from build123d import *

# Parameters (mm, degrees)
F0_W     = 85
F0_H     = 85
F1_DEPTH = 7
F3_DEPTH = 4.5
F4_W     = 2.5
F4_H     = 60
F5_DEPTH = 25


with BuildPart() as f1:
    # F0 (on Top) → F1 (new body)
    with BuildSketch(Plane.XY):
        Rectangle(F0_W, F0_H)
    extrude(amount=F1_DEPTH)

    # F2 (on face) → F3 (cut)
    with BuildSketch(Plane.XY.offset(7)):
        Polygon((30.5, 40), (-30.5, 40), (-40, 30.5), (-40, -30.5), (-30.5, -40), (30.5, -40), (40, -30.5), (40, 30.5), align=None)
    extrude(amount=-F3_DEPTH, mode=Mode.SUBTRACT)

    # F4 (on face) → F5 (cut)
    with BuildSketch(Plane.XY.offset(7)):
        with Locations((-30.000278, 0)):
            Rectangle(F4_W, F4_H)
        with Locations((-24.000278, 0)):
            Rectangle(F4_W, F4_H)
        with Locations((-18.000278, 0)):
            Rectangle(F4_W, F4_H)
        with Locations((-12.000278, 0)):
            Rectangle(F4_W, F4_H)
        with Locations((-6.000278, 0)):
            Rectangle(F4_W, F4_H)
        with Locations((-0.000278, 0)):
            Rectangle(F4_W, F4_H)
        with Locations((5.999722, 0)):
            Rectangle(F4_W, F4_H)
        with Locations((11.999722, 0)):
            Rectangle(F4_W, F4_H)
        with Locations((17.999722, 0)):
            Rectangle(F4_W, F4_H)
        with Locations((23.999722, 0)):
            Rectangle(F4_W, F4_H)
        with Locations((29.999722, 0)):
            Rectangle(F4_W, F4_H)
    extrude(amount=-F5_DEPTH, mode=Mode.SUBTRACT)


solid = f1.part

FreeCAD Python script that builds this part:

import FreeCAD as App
import Part
import Sketcher
from FreeCAD import Vector
Q = App.Units.Quantity

doc = App.newDocument("Part")
body = doc.addObject("PartDesign::Body", "Body")

# Sketch on XY plane
sketch1 = doc.addObject("Sketcher::SketchObject", "Sketch")
body.addObject(sketch1)
sketch1.AttachmentSupport = (doc.XY_Plane, [""])
sketch1.MapMode = "FlatFace"
sketch1.addGeometry(Part.LineSegment(Vector(-42.5, 42.5, 0), Vector(-42.5, -42.5, 0)), False)
sketch1.addGeometry(Part.LineSegment(Vector(-42.5, -42.5, 0), Vector(42.5, -42.5, 0)), False)
sketch1.addGeometry(Part.LineSegment(Vector(42.5, -42.5, 0), Vector(42.5, 42.5, 0)), False)
sketch1.addGeometry(Part.LineSegment(Vector(42.5, 42.5, 0), Vector(-42.5, 42.5, 0)), False)
sketch1.addConstraint(Sketcher.Constraint("Coincident", 0, 2, 1, 1))
sketch1.addConstraint(Sketcher.Constraint("Coincident", 1, 2, 2, 1))
sketch1.addConstraint(Sketcher.Constraint("Coincident", 2, 2, 3, 1))
sketch1.addConstraint(Sketcher.Constraint("Coincident", 3, 2, 0, 1))
sketch1.addConstraint(Sketcher.Constraint("Vertical", 0))
sketch1.addConstraint(Sketcher.Constraint("Horizontal", 1))
sketch1.addConstraint(Sketcher.Constraint("Vertical", 2))
sketch1.addConstraint(Sketcher.Constraint("Horizontal", 3))
sketch1.addConstraint(Sketcher.Constraint("Symmetric", 0, 2, 2, 2, -1, 1))
sketch1.addConstraint(Sketcher.Constraint("Equal", 3, 0))
sketch1.addConstraint(Sketcher.Constraint("DistanceX", 1, 1, 1, 2, Q("85 mm")))
pad1 = doc.addObject("PartDesign::Pad", "Pad")
body.addObject(pad1)
pad1.Profile = sketch1
pad1.Length = 7

# Sketch on XY plane
sketch2 = doc.addObject("Sketcher::SketchObject", "Sketch001")
body.addObject(sketch2)
sketch2.AttachmentSupport = (doc.XY_Plane, [""])
sketch2.MapMode = "FlatFace"
sketch2.AttachmentOffset = App.Placement(Vector(0, 0, 7), App.Rotation())
sketch2.addGeometry(Part.LineSegment(Vector(30.5, 40, 0), Vector(-30.5, 40, 0)), False)
sketch2.addGeometry(Part.LineSegment(Vector(-30.5, 40, 0), Vector(-40, 30.5, 0)), False)
sketch2.addGeometry(Part.LineSegment(Vector(-40, 30.5, 0), Vector(-40, -30.5, 0)), False)
sketch2.addGeometry(Part.LineSegment(Vector(-40, -30.5, 0), Vector(-30.5, -40, 0)), False)
sketch2.addGeometry(Part.LineSegment(Vector(-30.5, -40, 0), Vector(30.5, -40, 0)), False)
sketch2.addGeometry(Part.LineSegment(Vector(30.5, -40, 0), Vector(40, -30.5, 0)), False)
sketch2.addGeometry(Part.LineSegment(Vector(40, -30.5, 0), Vector(40, 30.5, 0)), False)
sketch2.addGeometry(Part.LineSegment(Vector(40, 30.5, 0), Vector(30.5, 40, 0)), False)
sketch2.addConstraint(Sketcher.Constraint("Coincident", 0, 2, 1, 1))
sketch2.addConstraint(Sketcher.Constraint("Coincident", 1, 2, 2, 1))
sketch2.addConstraint(Sketcher.Constraint("Coincident", 2, 2, 3, 1))
sketch2.addConstraint(Sketcher.Constraint("Coincident", 3, 2, 4, 1))
sketch2.addConstraint(Sketcher.Constraint("Coincident", 4, 2, 5, 1))
sketch2.addConstraint(Sketcher.Constraint("Coincident", 5, 2, 6, 1))
sketch2.addConstraint(Sketcher.Constraint("Coincident", 6, 2, 7, 1))
sketch2.addConstraint(Sketcher.Constraint("Coincident", 7, 2, 0, 1))
sketch2.addConstraint(Sketcher.Constraint("Horizontal", 0))
sketch2.addConstraint(Sketcher.Constraint("Vertical", 2))
sketch2.addConstraint(Sketcher.Constraint("Horizontal", 4))
sketch2.addConstraint(Sketcher.Constraint("Vertical", 6))
sketch2.addConstraint(Sketcher.Constraint("Symmetric", 0, 2, 4, 2, -1, 1))
sketch2.addConstraint(Sketcher.Constraint("Symmetric", 1, 2, 5, 2, -1, 1))
sketch2.addConstraint(Sketcher.Constraint("Perpendicular", 1, 3))
sketch2.addConstraint(Sketcher.Constraint("Perpendicular", 5, 7))
sketch2.addConstraint(Sketcher.Constraint("Horizontal", 2, 2, 5, 2))
sketch2.addConstraint(Sketcher.Constraint("Horizontal", 1, 2, 6, 2))
sketch2.addConstraint(Sketcher.Constraint("Vertical", 0, 2, 3, 2))
sketch2.addConstraint(Sketcher.Constraint("Equal", 4, 2))
sketch2.addConstraint(Sketcher.Constraint("DistanceX", 0, 2, 0, 1, Q("61 mm")))
sketch2.addConstraint(Sketcher.Constraint("DistanceY", -1, 1, 0, 2, Q("40 mm")))
pocket1 = doc.addObject("PartDesign::Pocket", "Pocket")
body.addObject(pocket1)
pocket1.Profile = sketch2
pocket1.Length = 4.5

# Sketch on XY plane
sketch3 = doc.addObject("Sketcher::SketchObject", "Sketch002")
body.addObject(sketch3)
sketch3.AttachmentSupport = (doc.XY_Plane, [""])
sketch3.MapMode = "FlatFace"
sketch3.AttachmentOffset = App.Placement(Vector(0, 0, 7), App.Rotation())
sketch3.addGeometry(Part.LineSegment(Vector(-31.250278, 30, 0), Vector(-31.250278, -30, 0)), False)
sketch3.addGeometry(Part.LineSegment(Vector(-31.250278, -30, 0), Vector(-28.750278, -30, 0)), False)
sketch3.addGeometry(Part.LineSegment(Vector(-28.750278, -30, 0), Vector(-28.750278, 30, 0)), False)
sketch3.addGeometry(Part.LineSegment(Vector(-28.750278, 30, 0), Vector(-31.250278, 30, 0)), False)
sketch3.addGeometry(Part.LineSegment(Vector(-25.250278, 30, 0), Vector(-25.250278, -30, 0)), False)
sketch3.addGeometry(Part.LineSegment(Vector(-25.250278, -30, 0), Vector(-22.750278, -30, 0)), False)
sketch3.addGeometry(Part.LineSegment(Vector(-22.750278, -30, 0), Vector(-22.750278, 30, 0)), False)
sketch3.addGeometry(Part.LineSegment(Vector(-22.750278, 30, 0), Vector(-25.250278, 30, 0)), False)
sketch3.addGeometry(Part.LineSegment(Vector(-19.250278, 30, 0), Vector(-19.250278, -30, 0)), False)
sketch3.addGeometry(Part.LineSegment(Vector(-19.250278, -30, 0), Vector(-16.750278, -30, 0)), False)
sketch3.addGeometry(Part.LineSegment(Vector(-16.750278, -30, 0), Vector(-16.750278, 30, 0)), False)
sketch3.addGeometry(Part.LineSegment(Vector(-16.750278, 30, 0), Vector(-19.250278, 30, 0)), False)
sketch3.addGeometry(Part.LineSegment(Vector(-13.250278, 30, 0), Vector(-13.250278, -30, 0)), False)
sketch3.addGeometry(Part.LineSegment(Vector(-13.250278, -30, 0), Vector(-10.750278, -30, 0)), False)
sketch3.addGeometry(Part.LineSegment(Vector(-10.750278, -30, 0), Vector(-10.750278, 30, 0)), False)
sketch3.addGeometry(Part.LineSegment(Vector(-10.750278, 30, 0), Vector(-13.250278, 30, 0)), False)
sketch3.addGeometry(Part.LineSegment(Vector(-7.250278, 30, 0), Vector(-7.250278, -30, 0)), False)
sketch3.addGeometry(Part.LineSegment(Vector(-7.250278, -30, 0), Vector(-4.750278, -30, 0)), False)
sketch3.addGeometry(Part.LineSegment(Vector(-4.750278, -30, 0), Vector(-4.750278, 30, 0)), False)
sketch3.addGeometry(Part.LineSegment(Vector(-4.750278, 30, 0), Vector(-7.250278, 30, 0)), False)
sketch3.addGeometry(Part.LineSegment(Vector(-1.250278, 30, 0), Vector(-1.250278, -30, 0)), False)
sketch3.addGeometry(Part.LineSegment(Vector(-1.250278, -30, 0), Vector(1.249722, -30, 0)), False)
sketch3.addGeometry(Part.LineSegment(Vector(1.249722, -30, 0), Vector(1.249722, 30, 0)), False)
sketch3.addGeometry(Part.LineSegment(Vector(1.249722, 30, 0), Vector(-1.250278, 30, 0)), False)
sketch3.addGeometry(Part.LineSegment(Vector(4.749722, 30, 0), Vector(4.749722, -30, 0)), False)
sketch3.addGeometry(Part.LineSegment(Vector(4.749722, -30, 0), Vector(7.249722, -30, 0)), False)
sketch3.addGeometry(Part.LineSegment(Vector(7.249722, -30, 0), Vector(7.249722, 30, 0)), False)
sketch3.addGeometry(Part.LineSegment(Vector(7.249722, 30, 0), Vector(4.749722, 30, 0)), False)
sketch3.addGeometry(Part.LineSegment(Vector(10.749722, 30, 0), Vector(10.749722, -30, 0)), False)
sketch3.addGeometry(Part.LineSegment(Vector(10.749722, -30, 0), Vector(13.249722, -30, 0)), False)
sketch3.addGeometry(Part.LineSegment(Vector(13.249722, -30, 0), Vector(13.249722, 30, 0)), False)
sketch3.addGeometry(Part.LineSegment(Vector(13.249722, 30, 0), Vector(10.749722, 30, 0)), False)
sketch3.addGeometry(Part.LineSegment(Vector(16.749722, 30, 0), Vector(16.749722, -30, 0)), False)
sketch3.addGeometry(Part.LineSegment(Vector(16.749722, -30, 0), Vector(19.249722, -30, 0)), False)
sketch3.addGeometry(Part.LineSegment(Vector(19.249722, -30, 0), Vector(19.249722, 30, 0)), False)
sketch3.addGeometry(Part.LineSegment(Vector(19.249722, 30, 0), Vector(16.749722, 30, 0)), False)
sketch3.addGeometry(Part.LineSegment(Vector(22.749722, 30, 0), Vector(22.749722, -30, 0)), False)
sketch3.addGeometry(Part.LineSegment(Vector(22.749722, -30, 0), Vector(25.249722, -30, 0)), False)
sketch3.addGeometry(Part.LineSegment(Vector(25.249722, -30, 0), Vector(25.249722, 30, 0)), False)
sketch3.addGeometry(Part.LineSegment(Vector(25.249722, 30, 0), Vector(22.749722, 30, 0)), False)
sketch3.addGeometry(Part.LineSegment(Vector(28.749722, 30, 0), Vector(28.749722, -30, 0)), False)
sketch3.addGeometry(Part.LineSegment(Vector(28.749722, -30, 0), Vector(31.249722, -30, 0)), False)
sketch3.addGeometry(Part.LineSegment(Vector(31.249722, -30, 0), Vector(31.249722, 30, 0)), False)
sketch3.addGeometry(Part.LineSegment(Vector(31.249722, 30, 0), Vector(28.749722, 30, 0)), False)
sketch3.addConstraint(Sketcher.Constraint("Coincident", 0, 2, 1, 1))
sketch3.addConstraint(Sketcher.Constraint("Coincident", 1, 2, 2, 1))
sketch3.addConstraint(Sketcher.Constraint("Coincident", 2, 2, 3, 1))
sketch3.addConstraint(Sketcher.Constraint("Coincident", 3, 2, 0, 1))
sketch3.addConstraint(Sketcher.Constraint("Coincident", 4, 2, 5, 1))
sketch3.addConstraint(Sketcher.Constraint("Coincident", 5, 2, 6, 1))
sketch3.addConstraint(Sketcher.Constraint("Coincident", 6, 2, 7, 1))
sketch3.addConstraint(Sketcher.Constraint("Coincident", 7, 2, 4, 1))
sketch3.addConstraint(Sketcher.Constraint("Coincident", 8, 2, 9, 1))
sketch3.addConstraint(Sketcher.Constraint("Coincident", 9, 2, 10, 1))
sketch3.addConstraint(Sketcher.Constraint("Coincident", 10, 2, 11, 1))
sketch3.addConstraint(Sketcher.Constraint("Coincident", 11, 2, 8, 1))
sketch3.addConstraint(Sketcher.Constraint("Coincident", 12, 2, 13, 1))
sketch3.addConstraint(Sketcher.Constraint("Coincident", 13, 2, 14, 1))
sketch3.addConstraint(Sketcher.Constraint("Coincident", 14, 2, 15, 1))
sketch3.addConstraint(Sketcher.Constraint("Coincident", 15, 2, 12, 1))
sketch3.addConstraint(Sketcher.Constraint("Coincident", 16, 2, 17, 1))
sketch3.addConstraint(Sketcher.Constraint("Coincident", 17, 2, 18, 1))
sketch3.addConstraint(Sketcher.Constraint("Coincident", 18, 2, 19, 1))
sketch3.addConstraint(Sketcher.Constraint("Coincident", 19, 2, 16, 1))
sketch3.addConstraint(Sketcher.Constraint("Coincident", 20, 2, 21, 1))
sketch3.addConstraint(Sketcher.Constraint("Coincident", 21, 2, 22, 1))
sketch3.addConstraint(Sketcher.Constraint("Coincident", 22, 2, 23, 1))
sketch3.addConstraint(Sketcher.Constraint("Coincident", 23, 2, 20, 1))
sketch3.addConstraint(Sketcher.Constraint("Coincident", 24, 2, 25, 1))
sketch3.addConstraint(Sketcher.Constraint("Coincident", 25, 2, 26, 1))
sketch3.addConstraint(Sketcher.Constraint("Coincident", 26, 2, 27, 1))
sketch3.addConstraint(Sketcher.Constraint("Coincident", 27, 2, 24, 1))
sketch3.addConstraint(Sketcher.Constraint("Coincident", 28, 2, 29, 1))
sketch3.addConstraint(Sketcher.Constraint("Coincident", 29, 2, 30, 1))
sketch3.addConstraint(Sketcher.Constraint("Coincident", 30, 2, 31, 1))
sketch3.addConstraint(Sketcher.Constraint("Coincident", 31, 2, 28, 1))
sketch3.addConstraint(Sketcher.Constraint("Coincident", 32, 2, 33, 1))
sketch3.addConstraint(Sketcher.Constraint("Coincident", 33, 2, 34, 1))
sketch3.addConstraint(Sketcher.Constraint("Coincident", 34, 2, 35, 1))
sketch3.addConstraint(Sketcher.Constraint("Coincident", 35, 2, 32, 1))
sketch3.addConstraint(Sketcher.Constraint("Coincident", 36, 2, 37, 1))
sketch3.addConstraint(Sketcher.Constraint("Coincident", 37, 2, 38, 1))
sketch3.addConstraint(Sketcher.Constraint("Coincident", 38, 2, 39, 1))
sketch3.addConstraint(Sketcher.Constraint("Coincident", 39, 2, 36, 1))
sketch3.addConstraint(Sketcher.Constraint("Coincident", 40, 2, 41, 1))
sketch3.addConstraint(Sketcher.Constraint("Coincident", 41, 2, 42, 1))
sketch3.addConstraint(Sketcher.Constraint("Coincident", 42, 2, 43, 1))
sketch3.addConstraint(Sketcher.Constraint("Coincident", 43, 2, 40, 1))
sketch3.addConstraint(Sketcher.Constraint("Vertical", 0))
sketch3.addConstraint(Sketcher.Constraint("Horizontal", 1))
sketch3.addConstraint(Sketcher.Constraint("Vertical", 2))
sketch3.addConstraint(Sketcher.Constraint("Horizontal", 3))
sketch3.addConstraint(Sketcher.Constraint("Vertical", 4))
sketch3.addConstraint(Sketcher.Constraint("Horizontal", 5))
sketch3.addConstraint(Sketcher.Constraint("Vertical", 6))
sketch3.addConstraint(Sketcher.Constraint("Horizontal", 7))
sketch3.addConstraint(Sketcher.Constraint("Vertical", 8))
sketch3.addConstraint(Sketcher.Constraint("Horizontal", 9))
sketch3.addConstraint(Sketcher.Constraint("Vertical", 10))
sketch3.addConstraint(Sketcher.Constraint("Horizontal", 11))
sketch3.addConstraint(Sketcher.Constraint("Vertical", 12))
sketch3.addConstraint(Sketcher.Constraint("Horizontal", 13))
sketch3.addConstraint(Sketcher.Constraint("Vertical", 14))
sketch3.addConstraint(Sketcher.Constraint("Horizontal", 15))
sketch3.addConstraint(Sketcher.Constraint("Vertical", 16))
sketch3.addConstraint(Sketcher.Constraint("Horizontal", 17))
sketch3.addConstraint(Sketcher.Constraint("Vertical", 18))
sketch3.addConstraint(Sketcher.Constraint("Horizontal", 19))
sketch3.addConstraint(Sketcher.Constraint("Vertical", 20))
sketch3.addConstraint(Sketcher.Constraint("Horizontal", 21))
sketch3.addConstraint(Sketcher.Constraint("Vertical", 22))
sketch3.addConstraint(Sketcher.Constraint("Horizontal", 23))
sketch3.addConstraint(Sketcher.Constraint("Vertical", 24))
sketch3.addConstraint(Sketcher.Constraint("Horizontal", 25))
sketch3.addConstraint(Sketcher.Constraint("Vertical", 26))
sketch3.addConstraint(Sketcher.Constraint("Horizontal", 27))
sketch3.addConstraint(Sketcher.Constraint("Vertical", 28))
sketch3.addConstraint(Sketcher.Constraint("Horizontal", 29))
sketch3.addConstraint(Sketcher.Constraint("Vertical", 30))
sketch3.addConstraint(Sketcher.Constraint("Horizontal", 31))
sketch3.addConstraint(Sketcher.Constraint("Vertical", 32))
sketch3.addConstraint(Sketcher.Constraint("Horizontal", 33))
sketch3.addConstraint(Sketcher.Constraint("Vertical", 34))
sketch3.addConstraint(Sketcher.Constraint("Horizontal", 35))
sketch3.addConstraint(Sketcher.Constraint("Vertical", 36))
sketch3.addConstraint(Sketcher.Constraint("Horizontal", 37))
sketch3.addConstraint(Sketcher.Constraint("Vertical", 38))
sketch3.addConstraint(Sketcher.Constraint("Horizontal", 39))
sketch3.addConstraint(Sketcher.Constraint("Vertical", 40))
sketch3.addConstraint(Sketcher.Constraint("Horizontal", 41))
sketch3.addConstraint(Sketcher.Constraint("Vertical", 42))
sketch3.addConstraint(Sketcher.Constraint("Horizontal", 43))
sketch3.addConstraint(Sketcher.Constraint("Horizontal", 1, 2, 4, 2))
sketch3.addConstraint(Sketcher.Constraint("Horizontal", 3, 2, 6, 2))
sketch3.addConstraint(Sketcher.Constraint("Horizontal", 5, 2, 8, 2))
sketch3.addConstraint(Sketcher.Constraint("Horizontal", 7, 2, 10, 2))
sketch3.addConstraint(Sketcher.Constraint("Horizontal", 9, 2, 12, 2))
sketch3.addConstraint(Sketcher.Constraint("Horizontal", 11, 2, 14, 2))
sketch3.addConstraint(Sketcher.Constraint("Horizontal", 13, 2, 16, 2))
sketch3.addConstraint(Sketcher.Constraint("Horizontal", 15, 2, 18, 2))
sketch3.addConstraint(Sketcher.Constraint("Horizontal", 17, 2, 20, 2))
sketch3.addConstraint(Sketcher.Constraint("Horizontal", 19, 2, 22, 2))
sketch3.addConstraint(Sketcher.Constraint("Horizontal", 21, 2, 24, 2))
sketch3.addConstraint(Sketcher.Constraint("Horizontal", 23, 2, 26, 2))
sketch3.addConstraint(Sketcher.Constraint("Horizontal", 25, 2, 28, 2))
sketch3.addConstraint(Sketcher.Constraint("Horizontal", 27, 2, 30, 2))
sketch3.addConstraint(Sketcher.Constraint("Horizontal", 29, 2, 32, 2))
sketch3.addConstraint(Sketcher.Constraint("Horizontal", 31, 2, 34, 2))
sketch3.addConstraint(Sketcher.Constraint("Horizontal", 33, 2, 36, 2))
sketch3.addConstraint(Sketcher.Constraint("Horizontal", 35, 2, 38, 2))
sketch3.addConstraint(Sketcher.Constraint("Horizontal", 37, 2, 40, 2))
sketch3.addConstraint(Sketcher.Constraint("Horizontal", 39, 2, 42, 2))
sketch3.addConstraint(Sketcher.Constraint("Equal", 3, 5))
sketch3.addConstraint(Sketcher.Constraint("Equal", 7, 9))
sketch3.addConstraint(Sketcher.Constraint("Equal", 11, 13))
sketch3.addConstraint(Sketcher.Constraint("Equal", 15, 17))
sketch3.addConstraint(Sketcher.Constraint("Equal", 19, 21))
sketch3.addConstraint(Sketcher.Constraint("Equal", 23, 25))
sketch3.addConstraint(Sketcher.Constraint("Equal", 27, 29))
sketch3.addConstraint(Sketcher.Constraint("Equal", 31, 33))
sketch3.addConstraint(Sketcher.Constraint("Equal", 35, 37))
sketch3.addConstraint(Sketcher.Constraint("Equal", 39, 41))
sketch3.addConstraint(Sketcher.Constraint("DistanceY", 0, 2, 0, 1, Q("60 mm")))
sketch3.addConstraint(Sketcher.Constraint("DistanceX", 1, 1, 1, 2, Q("2.5 mm")))
sketch3.addConstraint(Sketcher.Constraint("DistanceY", 0, 2, -1, 1, Q("30 mm")))
sketch3.addConstraint(Sketcher.Constraint("DistanceX", 0, 2, 4, 2, Q("6 mm")))
sketch3.addConstraint(Sketcher.Constraint("DistanceX", 4, 2, 8, 2, Q("6 mm")))
sketch3.addConstraint(Sketcher.Constraint("DistanceX", 8, 2, 12, 2, Q("6 mm")))
sketch3.addConstraint(Sketcher.Constraint("DistanceX", 12, 2, 16, 2, Q("6 mm")))
sketch3.addConstraint(Sketcher.Constraint("DistanceX", 16, 2, 20, 2, Q("6 mm")))
sketch3.addConstraint(Sketcher.Constraint("DistanceX", 20, 2, 24, 2, Q("6 mm")))
sketch3.addConstraint(Sketcher.Constraint("DistanceX", 24, 2, 28, 2, Q("6 mm")))
sketch3.addConstraint(Sketcher.Constraint("DistanceX", 28, 2, 32, 2, Q("6 mm")))
sketch3.addConstraint(Sketcher.Constraint("DistanceX", 32, 2, 36, 2, Q("6 mm")))
sketch3.addConstraint(Sketcher.Constraint("DistanceX", 36, 2, 40, 2, Q("6 mm")))
sketch3.addConstraint(Sketcher.Constraint("DistanceX", 0, 2, -1, 1, Q("31.250278 mm")))
pocket2 = doc.addObject("PartDesign::Pocket", "Pocket001")
body.addObject(pocket2)
pocket2.Profile = sketch3
pocket2.Length = 25

doc.recompute()
